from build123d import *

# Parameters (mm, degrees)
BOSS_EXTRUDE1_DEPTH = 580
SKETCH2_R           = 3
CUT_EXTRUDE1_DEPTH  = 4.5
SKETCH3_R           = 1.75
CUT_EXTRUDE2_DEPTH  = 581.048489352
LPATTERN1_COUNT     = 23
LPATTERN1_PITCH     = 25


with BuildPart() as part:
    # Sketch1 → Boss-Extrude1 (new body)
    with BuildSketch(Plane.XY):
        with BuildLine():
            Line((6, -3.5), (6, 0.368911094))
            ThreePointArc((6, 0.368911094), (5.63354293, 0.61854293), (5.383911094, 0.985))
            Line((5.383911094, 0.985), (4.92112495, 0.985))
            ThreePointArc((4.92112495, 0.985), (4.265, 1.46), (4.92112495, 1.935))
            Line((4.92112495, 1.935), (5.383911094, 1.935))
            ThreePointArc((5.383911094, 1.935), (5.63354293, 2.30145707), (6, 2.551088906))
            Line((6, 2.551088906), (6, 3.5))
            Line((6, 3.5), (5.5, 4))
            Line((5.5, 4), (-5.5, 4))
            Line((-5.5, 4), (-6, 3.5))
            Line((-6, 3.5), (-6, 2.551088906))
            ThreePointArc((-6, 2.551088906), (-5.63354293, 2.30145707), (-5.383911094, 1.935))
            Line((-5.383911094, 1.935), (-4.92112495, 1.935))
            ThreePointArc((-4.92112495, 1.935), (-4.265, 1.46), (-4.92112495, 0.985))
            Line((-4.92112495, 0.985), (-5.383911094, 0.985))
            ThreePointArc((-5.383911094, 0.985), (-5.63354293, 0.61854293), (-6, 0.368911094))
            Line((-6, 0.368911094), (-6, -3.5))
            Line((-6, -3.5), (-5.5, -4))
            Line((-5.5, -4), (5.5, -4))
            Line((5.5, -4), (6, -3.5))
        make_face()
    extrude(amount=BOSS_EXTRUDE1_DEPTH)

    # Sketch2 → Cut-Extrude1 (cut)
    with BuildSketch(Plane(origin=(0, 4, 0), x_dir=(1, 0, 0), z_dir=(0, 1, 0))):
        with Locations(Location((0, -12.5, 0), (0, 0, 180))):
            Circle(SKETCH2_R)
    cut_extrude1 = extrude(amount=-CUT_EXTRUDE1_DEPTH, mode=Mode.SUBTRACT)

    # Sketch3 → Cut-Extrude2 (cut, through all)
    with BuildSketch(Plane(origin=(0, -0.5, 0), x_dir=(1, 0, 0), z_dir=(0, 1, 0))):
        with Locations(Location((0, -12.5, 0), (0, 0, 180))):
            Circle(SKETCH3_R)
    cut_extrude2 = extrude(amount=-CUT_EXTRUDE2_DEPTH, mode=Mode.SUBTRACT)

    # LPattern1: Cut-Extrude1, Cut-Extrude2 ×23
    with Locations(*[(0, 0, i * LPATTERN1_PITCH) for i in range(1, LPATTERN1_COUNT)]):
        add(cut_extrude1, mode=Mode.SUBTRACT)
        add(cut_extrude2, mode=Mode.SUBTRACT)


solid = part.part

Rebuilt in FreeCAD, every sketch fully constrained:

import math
import FreeCAD as App
import Part
import Sketcher
Q = App.Units.Quantity

doc = App.newDocument("Part")
body = doc.addObject("PartDesign::Body", "Body")

sketch1 = body.newObject("Sketcher::SketchObject", "Sketch")
sketch1.AttachmentSupport = (doc.getObject("XY_Plane"), [""])
sketch1.MapMode = "FlatFace"
sketch1.addGeometry([
    Part.LineSegment(App.Vector(6, -3.5, 0), App.Vector(6, 0.368911, 0)),
    Part.ArcOfCircle(Part.Circle(App.Vector(6.475, 1.46, 0), App.Vector(0, 0, 1), 1.19), math.radians(-156.474345), math.radians(-113.525655)),
    Part.LineSegment(App.Vector(5.383911, 0.985, 0), App.Vector(4.921125, 0.985, 0)),
    Part.ArcOfCircle(Part.Circle(App.Vector(4.765, 1.46, 0), App.Vector(0, 0, 1), 0.5), math.radians(71.805128), math.radians(288.194872)),
    Part.LineSegment(App.Vector(4.921125, 1.935, 0), App.Vector(5.383911, 1.935, 0)),
    Part.ArcOfCircle(Part.Circle(App.Vector(6.475, 1.46, 0), App.Vector(0, 0, 1), 1.19), math.radians(113.525655), math.radians(156.474345)),
    Part.LineSegment(App.Vector(6, 2.551089, 0), App.Vector(6, 3.5, 0)),
    Part.LineSegment(App.Vector(6, 3.5, 0), App.Vector(5.5, 4, 0)),
    Part.LineSegment(App.Vector(5.5, 4, 0), App.Vector(-5.5, 4, 0)),
    Part.LineSegment(App.Vector(-5.5, 4, 0), App.Vector(-6, 3.5, 0)),
    Part.LineSegment(App.Vector(-6, 3.5, 0), App.Vector(-6, 2.551089, 0)),
    Part.ArcOfCircle(Part.Circle(App.Vector(-6.475, 1.46, 0), App.Vector(0, 0, 1), 1.19), math.radians(23.525655), math.radians(66.474345)),
    Part.LineSegment(App.Vector(-5.383911, 1.935, 0), App.Vector(-4.921125, 1.935, 0)),
    Part.ArcOfCircle(Part.Circle(App.Vector(-4.765, 1.46, 0), App.Vector(0, 0, 1), 0.5), math.radians(-108.194872), math.radians(108.194872)),
    Part.LineSegment(App.Vector(-4.921125, 0.985, 0), App.Vector(-5.383911, 0.985, 0)),
    Part.ArcOfCircle(Part.Circle(App.Vector(-6.475, 1.46, 0), App.Vector(0, 0, 1), 1.19), math.radians(-66.474345), math.radians(-23.525655)),
    Part.LineSegment(App.Vector(-6, 0.368911, 0), App.Vector(-6, -3.5, 0)),
    Part.LineSegment(App.Vector(-6, -3.5, 0), App.Vector(-5.5, -4, 0)),
    Part.LineSegment(App.Vector(-5.5, -4, 0), App.Vector(5.5, -4, 0)),
    Part.LineSegment(App.Vector(5.5, -4, 0), App.Vector(6, -3.5, 0)),
], False)
sketch1.addConstraint([
    Sketcher.Constraint("Coincident", 0, 2, 1, 2),
    Sketcher.Constraint("Coincident", 1, 1, 2, 1),
    Sketcher.Constraint("Coincident", 2, 2, 3, 2),
    Sketcher.Constraint("Coincident", 3, 1, 4, 1),
    Sketcher.Constraint("Coincident", 4, 2, 5, 2),
    Sketcher.Constraint("Coincident", 5, 1, 6, 1),
    Sketcher.Constraint("Coincident", 6, 2, 7, 1),
    Sketcher.Constraint("Coincident", 7, 2, 8, 1),
    Sketcher.Constraint("Coincident", 8, 2, 9, 1),
    Sketcher.Constraint("Coincident", 9, 2, 10, 1),
    Sketcher.Constraint("Coincident", 10, 2, 11, 2),
    Sketcher.Constraint("Coincident", 11, 1, 12, 1),
    Sketcher.Constraint("Coincident", 12, 2, 13, 2),
    Sketcher.Constraint("Coincident", 13, 1, 14, 1),
    Sketcher.Constraint("Coincident", 14, 2, 15, 2),
    Sketcher.Constraint("Coincident", 15, 1, 16, 1),
    Sketcher.Constraint("Coincident", 16, 2, 17, 1),
    Sketcher.Constraint("Coincident", 17, 2, 18, 1),
    Sketcher.Constraint("Coincident", 18, 2, 19, 1),
    Sketcher.Constraint("Coincident", 19, 2, 0, 1),
    Sketcher.Constraint("Vertical", 0),
    Sketcher.Constraint("Horizontal", 2),
    Sketcher.Constraint("Horizontal", 4),
    Sketcher.Constraint("Vertical", 6),
    Sketcher.Constraint("Horizontal", 8),
    Sketcher.Constraint("Vertical", 10),
    Sketcher.Constraint("Horizontal", 12),
    Sketcher.Constraint("Horizontal", 14),
    Sketcher.Constraint("Vertical", 16),
    Sketcher.Constraint("Horizontal", 18),
    Sketcher.Constraint("Coincident", 5, 3, 1, 3),
    Sketcher.Constraint("Coincident", 15, 3, 11, 3),
    Sketcher.Constraint("Equal", 1, 5),
    Sketcher.Constraint("Equal", 5, 11),
    Sketcher.Constraint("Equal", 3, 13),
    Sketcher.Constraint("Equal", 11, 15),
    Sketcher.Constraint("Symmetric", 6, 2, 16, 2, -1, 1),
    Sketcher.Constraint("Symmetric", 7, 2, 17, 2, -1, 1),
    Sketcher.Constraint("Symmetric", 9, 2, 19, 2, -1, 1),
    Sketcher.Constraint("Symmetric", 1, 3, 11, 3, -2),
    Sketcher.Constraint("Symmetric", 3, 3, 13, 3, -2),
    Sketcher.Constraint("Symmetric", 6, 2, 9, 2, -2),
    Sketcher.Constraint("Perpendicular", 7, 9),
    Sketcher.Constraint("Perpendicular", 17, 19),
    Sketcher.Constraint("Horizontal", 1, 3, 3, 3),
    Sketcher.Constraint("Horizontal", 4, 2, 11, 1),
    Sketcher.Constraint("Horizontal", 2, 2, 13, 1),
    Sketcher.Constraint("Vertical", 2, 2, 3, 1),
    Sketcher.Constraint("Vertical", 8, 2, 17, 2),
    Sketcher.Constraint("Radius", 3, Q("0.5 mm")),
    Sketcher.Constraint("DistanceX", 8, 2, 8, 1, Q("11 mm")),
    Sketcher.Constraint("Radius", 1, Q("1.19 mm")),
    Sketcher.Constraint("DistanceX", -1, 1, 0, 2, Q("6 mm")),
    Sketcher.Constraint("DistanceY", -1, 1, 7, 2, Q("4 mm")),
    Sketcher.Constraint("DistanceY", -1, 1, 1, 3, Q("1.46 mm")),
    Sketcher.Constraint("DistanceX", 3, 3, 1, 3, Q("1.71 mm")),
    Sketcher.Constraint("DistanceX", 11, 3, 3, 3, Q("11.24 mm")),
    Sketcher.Constraint("DistanceY", 2, 2, 3, 1, Q("0.95 mm")),
])
pad1 = body.newObject("PartDesign::Pad", "Pad")
pad1.Profile = sketch1
pad1.Length = 580

sketch2 = body.newObject("Sketcher::SketchObject", "Sketch001")
sketch2.AttachmentSupport = (doc.getObject("XZ_Plane"), [""])
sketch2.MapMode = "FlatFace"
sketch2.AttachmentOffset = App.Placement(App.Vector(0, 0, -4), App.Rotation())
sketch2.addGeometry(Part.Circle(App.Vector(0, 12.5, 0), App.Vector(0, 0, 1), 3), False)
sketch2.addConstraint([
    Sketcher.Constraint("PointOnObject", 0, 3, -2),
    Sketcher.Constraint("Diameter", 0, Q("6 mm")),
    Sketcher.Constraint("DistanceY", -1, 1, 0, 3, Q("12.5 mm")),
])
pocket1 = body.newObject("PartDesign::Pocket", "Pocket")
pocket1.Profile = sketch2
pocket1.Length = 4.5
pocket1.Reversed = True

sketch3 = body.newObject("Sketcher::SketchObject", "Sketch002")
sketch3.AttachmentSupport = (doc.getObject("XZ_Plane"), [""])
sketch3.MapMode = "FlatFace"
sketch3.AttachmentOffset = App.Placement(App.Vector(0, 0, 0.5), App.Rotation())
sketch3.addGeometry(Part.Circle(App.Vector(0, 12.5, 0), App.Vector(0, 0, 1), 1.75), False)
sketch3.addConstraint([
    Sketcher.Constraint("PointOnObject", 0, 3, -2),
    Sketcher.Constraint("Diameter", 0, Q("3.5 mm")),
    Sketcher.Constraint("DistanceY", -1, 1, 0, 3, Q("12.5 mm")),
])
pocket2 = body.newObject("PartDesign::Pocket", "Pocket001")
pocket2.Profile = sketch3
pocket2.Type = "ThroughAll"
pocket2.Reversed = True
doc.recompute()

linearpattern = body.newObject("PartDesign::LinearPattern", "LinearPattern")
linearpattern.Originals = [pocket1, pocket2]
linearpattern.Direction = (doc.getObject("Z_Axis"), [""])
linearpattern.Mode = "offset"
linearpattern.Offset = 25
linearpattern.Occurrences = 23
body.Tip = linearpattern

doc.recompute()
